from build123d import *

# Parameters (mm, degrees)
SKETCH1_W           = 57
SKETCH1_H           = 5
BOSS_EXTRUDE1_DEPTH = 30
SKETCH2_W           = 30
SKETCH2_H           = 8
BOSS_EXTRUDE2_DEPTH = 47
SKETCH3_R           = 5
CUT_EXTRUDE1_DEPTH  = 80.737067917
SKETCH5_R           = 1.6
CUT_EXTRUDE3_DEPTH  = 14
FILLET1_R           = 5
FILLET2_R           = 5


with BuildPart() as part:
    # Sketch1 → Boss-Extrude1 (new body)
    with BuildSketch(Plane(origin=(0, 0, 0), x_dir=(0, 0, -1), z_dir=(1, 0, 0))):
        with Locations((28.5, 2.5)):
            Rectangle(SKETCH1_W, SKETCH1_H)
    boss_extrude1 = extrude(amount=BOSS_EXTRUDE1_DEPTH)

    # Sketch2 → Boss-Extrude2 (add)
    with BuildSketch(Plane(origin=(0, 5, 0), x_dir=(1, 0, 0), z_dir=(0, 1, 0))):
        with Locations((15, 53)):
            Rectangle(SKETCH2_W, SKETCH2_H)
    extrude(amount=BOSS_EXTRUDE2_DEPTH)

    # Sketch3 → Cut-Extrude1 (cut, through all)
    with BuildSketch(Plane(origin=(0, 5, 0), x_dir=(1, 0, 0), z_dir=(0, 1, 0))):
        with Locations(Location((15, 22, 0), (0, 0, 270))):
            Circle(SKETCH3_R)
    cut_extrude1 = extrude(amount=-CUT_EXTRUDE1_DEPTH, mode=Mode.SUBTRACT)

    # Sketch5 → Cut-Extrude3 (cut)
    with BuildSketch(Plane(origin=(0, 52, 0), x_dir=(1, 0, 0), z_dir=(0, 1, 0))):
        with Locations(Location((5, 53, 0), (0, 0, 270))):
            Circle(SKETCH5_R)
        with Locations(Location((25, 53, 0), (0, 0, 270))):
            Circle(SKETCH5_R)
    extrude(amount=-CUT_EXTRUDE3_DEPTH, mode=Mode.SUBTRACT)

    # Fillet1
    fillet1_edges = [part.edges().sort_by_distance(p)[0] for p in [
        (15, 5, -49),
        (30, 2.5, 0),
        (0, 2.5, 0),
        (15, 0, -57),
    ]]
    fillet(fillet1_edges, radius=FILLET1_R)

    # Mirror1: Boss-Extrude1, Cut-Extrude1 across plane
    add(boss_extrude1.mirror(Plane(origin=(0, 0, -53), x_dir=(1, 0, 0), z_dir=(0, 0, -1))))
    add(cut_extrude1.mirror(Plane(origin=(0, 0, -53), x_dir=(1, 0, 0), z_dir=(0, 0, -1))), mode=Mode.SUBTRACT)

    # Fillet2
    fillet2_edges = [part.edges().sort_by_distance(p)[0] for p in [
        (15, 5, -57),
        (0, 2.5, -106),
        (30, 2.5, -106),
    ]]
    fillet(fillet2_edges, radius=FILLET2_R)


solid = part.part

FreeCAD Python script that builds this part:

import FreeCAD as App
import Part
import Sketcher


def edges_at(feature, points):
    """Names of the edges that pass closest to the given points."""
    edges = feature.Shape.Edges
    near = lambda p: min(range(len(edges)), key=lambda i: edges[i].distToShape(Part.Vertex(*p))[0])
    return sorted({f"Edge{near(p) + 1}" for p in points})


def add_polygon(sketch, points):
    """Adds a closed chain of lines whose ends are joined by coincident constraints."""
    first, n = sketch.GeometryCount, len(points)
    for a, b in zip(points, points[1:] + points[:1]):
        sketch.addGeometry(Part.LineSegment(App.Vector(*a, 0), App.Vector(*b, 0)), False)
    for i in range(n):
        sketch.addConstraint(Sketcher.Constraint("Coincident", first + i, 2, first + (i + 1) % n, 1))

doc = App.newDocument("Part")
body = doc.addObject("PartDesign::Body", "Body")

# Sketch on YZ plane
sketch1 = body.newObject("Sketcher::SketchObject", "Sketch")
sketch1.AttachmentSupport = (doc.getObject("YZ_Plane"), [""])
sketch1.MapMode = "FlatFace"
add_polygon(sketch1, [(5, 0), (0, 0), (0, -57), (5, -57)])  # lines 0-3
sketch1.addConstraint([
    Sketcher.Constraint("Horizontal", 0),
    Sketcher.Constraint("Vertical", 1),
    Sketcher.Constraint("Horizontal", 2),
    Sketcher.Constraint("Vertical", 3),
    Sketcher.Constraint("Coincident", 0, 2, -1, 1),
    Sketcher.Constraint("DistanceX", 0, 2, 0, 1, 5.0),
    Sketcher.Constraint("DistanceY", 1, 2, 1, 1, 57.0),
])
pad1 = body.newObject("PartDesign::Pad", "Pad")
pad1.Profile = sketch1
pad1.Length = 30

# Sketch on XZ plane
sketch2 = body.newObject("Sketcher::SketchObject", "Sketch001")
sketch2.AttachmentSupport = (doc.getObject("XZ_Plane"), [""])
sketch2.MapMode = "FlatFace"
sketch2.AttachmentOffset = App.Placement(App.Vector(0, 0, -5), App.Rotation())
add_polygon(sketch2, [(0, -57), (0, -49), (30, -49), (30, -57)])  # lines 0-3
sketch2.addConstraint([
    Sketcher.Constraint("Vertical", 0),
    Sketcher.Constraint("Horizontal", 1),
    Sketcher.Constraint("Vertical", 2),
    Sketcher.Constraint("Horizontal", 3),
    Sketcher.Constraint("PointOnObject", 0, 2, -2),
    Sketcher.Constraint("DistanceX", 1, 1, 1, 2, 30.0),
    Sketcher.Constraint("DistanceY", 0, 1, 0, 2, 8.0),
    Sketcher.Constraint("DistanceY", 0, 2, -1, 1, 49.0),
])
pad2 = body.newObject("PartDesign::Pad", "Pad001")
pad2.Profile = sketch2
pad2.Length = 47
pad2.Reversed = True

# Sketch on XZ plane
sketch3 = body.newObject("Sketcher::SketchObject", "Sketch002")
sketch3.AttachmentSupport = (doc.getObject("XZ_Plane"), [""])
sketch3.MapMode = "FlatFace"
sketch3.AttachmentOffset = App.Placement(App.Vector(0, 0, -5), App.Rotation())
sketch3.addGeometry(Part.Circle(App.Vector(15, -22, 0), App.Vector(0, 0, 1), 5), False)
sketch3.addConstraint([
    Sketcher.Constraint("Diameter", 0, 10.0),
    Sketcher.Constraint("DistanceX", -1, 1, 0, 3, 15.0),
    Sketcher.Constraint("DistanceY", 0, 3, -1, 1, 22.0),
])
pocket1 = body.newObject("PartDesign::Pocket", "Pocket")
pocket1.Profile = sketch3
pocket1.Type = "ThroughAll"
pocket1.Reversed = True

# Sketch on XZ plane
sketch4 = body.newObject("Sketcher::SketchObject", "Sketch003")
sketch4.AttachmentSupport = (doc.getObject("XZ_Plane"), [""])
sketch4.MapMode = "FlatFace"
sketch4.AttachmentOffset = App.Placement(App.Vector(0, 0, -52), App.Rotation())
sketch4.addGeometry([
    Part.Circle(App.Vector(5, -53, 0), App.Vector(0, 0, 1), 1.6),
    Part.Circle(App.Vector(25, -53, 0), App.Vector(0, 0, 1), 1.6),
], False)
sketch4.addConstraint([
    Sketcher.Constraint("Equal", 0, 1),
    Sketcher.Constraint("Horizontal", 0, 3, 1, 3),
    Sketcher.Constraint("Diameter", 0, 3.2),
    Sketcher.Constraint("DistanceX", -1, 1, 0, 3, 5.0),
    Sketcher.Constraint("DistanceY", 0, 3, -1, 1, 53.0),
    Sketcher.Constraint("DistanceX", -1, 1, 1, 3, 25.0),
])
pocket2 = body.newObject("PartDesign::Pocket", "Pocket001")
pocket2.Profile = sketch4
pocket2.Length = 14
pocket2.Reversed = True
doc.recompute()

fillet = body.newObject("PartDesign::Fillet", "Fillet")
fillet.Base = (pocket2, edges_at(pocket2, [
    (15, 5, -49),
    (30, 2.5, 0),
    (0, 2.5, 0),
    (15, 0, -57),
]))
fillet.Radius = 5
doc.recompute()

datumplane = body.newObject("PartDesign::Plane", "DatumPlane")
datumplane.AttachmentSupport = (doc.getObject("XY_Plane"), [""])
datumplane.MapMode = "FlatFace"
datumplane.AttachmentOffset = App.Placement(App.Vector(0, 0, -53), App.Rotation())
mirrored = body.newObject("PartDesign::Mirrored", "Mirrored")
mirrored.Originals = [pad1, pocket1]
mirrored.MirrorPlane = (datumplane, [""])
body.Tip = mirrored
doc.recompute()

fillet2 = body.newObject("PartDesign::Fillet", "Fillet001")
fillet2.Base = (mirrored, edges_at(mirrored, [(15, 5, -57), (0, 2.5, -106), (30, 2.5, -106)]))
fillet2.Radius = 5

doc.recompute()
